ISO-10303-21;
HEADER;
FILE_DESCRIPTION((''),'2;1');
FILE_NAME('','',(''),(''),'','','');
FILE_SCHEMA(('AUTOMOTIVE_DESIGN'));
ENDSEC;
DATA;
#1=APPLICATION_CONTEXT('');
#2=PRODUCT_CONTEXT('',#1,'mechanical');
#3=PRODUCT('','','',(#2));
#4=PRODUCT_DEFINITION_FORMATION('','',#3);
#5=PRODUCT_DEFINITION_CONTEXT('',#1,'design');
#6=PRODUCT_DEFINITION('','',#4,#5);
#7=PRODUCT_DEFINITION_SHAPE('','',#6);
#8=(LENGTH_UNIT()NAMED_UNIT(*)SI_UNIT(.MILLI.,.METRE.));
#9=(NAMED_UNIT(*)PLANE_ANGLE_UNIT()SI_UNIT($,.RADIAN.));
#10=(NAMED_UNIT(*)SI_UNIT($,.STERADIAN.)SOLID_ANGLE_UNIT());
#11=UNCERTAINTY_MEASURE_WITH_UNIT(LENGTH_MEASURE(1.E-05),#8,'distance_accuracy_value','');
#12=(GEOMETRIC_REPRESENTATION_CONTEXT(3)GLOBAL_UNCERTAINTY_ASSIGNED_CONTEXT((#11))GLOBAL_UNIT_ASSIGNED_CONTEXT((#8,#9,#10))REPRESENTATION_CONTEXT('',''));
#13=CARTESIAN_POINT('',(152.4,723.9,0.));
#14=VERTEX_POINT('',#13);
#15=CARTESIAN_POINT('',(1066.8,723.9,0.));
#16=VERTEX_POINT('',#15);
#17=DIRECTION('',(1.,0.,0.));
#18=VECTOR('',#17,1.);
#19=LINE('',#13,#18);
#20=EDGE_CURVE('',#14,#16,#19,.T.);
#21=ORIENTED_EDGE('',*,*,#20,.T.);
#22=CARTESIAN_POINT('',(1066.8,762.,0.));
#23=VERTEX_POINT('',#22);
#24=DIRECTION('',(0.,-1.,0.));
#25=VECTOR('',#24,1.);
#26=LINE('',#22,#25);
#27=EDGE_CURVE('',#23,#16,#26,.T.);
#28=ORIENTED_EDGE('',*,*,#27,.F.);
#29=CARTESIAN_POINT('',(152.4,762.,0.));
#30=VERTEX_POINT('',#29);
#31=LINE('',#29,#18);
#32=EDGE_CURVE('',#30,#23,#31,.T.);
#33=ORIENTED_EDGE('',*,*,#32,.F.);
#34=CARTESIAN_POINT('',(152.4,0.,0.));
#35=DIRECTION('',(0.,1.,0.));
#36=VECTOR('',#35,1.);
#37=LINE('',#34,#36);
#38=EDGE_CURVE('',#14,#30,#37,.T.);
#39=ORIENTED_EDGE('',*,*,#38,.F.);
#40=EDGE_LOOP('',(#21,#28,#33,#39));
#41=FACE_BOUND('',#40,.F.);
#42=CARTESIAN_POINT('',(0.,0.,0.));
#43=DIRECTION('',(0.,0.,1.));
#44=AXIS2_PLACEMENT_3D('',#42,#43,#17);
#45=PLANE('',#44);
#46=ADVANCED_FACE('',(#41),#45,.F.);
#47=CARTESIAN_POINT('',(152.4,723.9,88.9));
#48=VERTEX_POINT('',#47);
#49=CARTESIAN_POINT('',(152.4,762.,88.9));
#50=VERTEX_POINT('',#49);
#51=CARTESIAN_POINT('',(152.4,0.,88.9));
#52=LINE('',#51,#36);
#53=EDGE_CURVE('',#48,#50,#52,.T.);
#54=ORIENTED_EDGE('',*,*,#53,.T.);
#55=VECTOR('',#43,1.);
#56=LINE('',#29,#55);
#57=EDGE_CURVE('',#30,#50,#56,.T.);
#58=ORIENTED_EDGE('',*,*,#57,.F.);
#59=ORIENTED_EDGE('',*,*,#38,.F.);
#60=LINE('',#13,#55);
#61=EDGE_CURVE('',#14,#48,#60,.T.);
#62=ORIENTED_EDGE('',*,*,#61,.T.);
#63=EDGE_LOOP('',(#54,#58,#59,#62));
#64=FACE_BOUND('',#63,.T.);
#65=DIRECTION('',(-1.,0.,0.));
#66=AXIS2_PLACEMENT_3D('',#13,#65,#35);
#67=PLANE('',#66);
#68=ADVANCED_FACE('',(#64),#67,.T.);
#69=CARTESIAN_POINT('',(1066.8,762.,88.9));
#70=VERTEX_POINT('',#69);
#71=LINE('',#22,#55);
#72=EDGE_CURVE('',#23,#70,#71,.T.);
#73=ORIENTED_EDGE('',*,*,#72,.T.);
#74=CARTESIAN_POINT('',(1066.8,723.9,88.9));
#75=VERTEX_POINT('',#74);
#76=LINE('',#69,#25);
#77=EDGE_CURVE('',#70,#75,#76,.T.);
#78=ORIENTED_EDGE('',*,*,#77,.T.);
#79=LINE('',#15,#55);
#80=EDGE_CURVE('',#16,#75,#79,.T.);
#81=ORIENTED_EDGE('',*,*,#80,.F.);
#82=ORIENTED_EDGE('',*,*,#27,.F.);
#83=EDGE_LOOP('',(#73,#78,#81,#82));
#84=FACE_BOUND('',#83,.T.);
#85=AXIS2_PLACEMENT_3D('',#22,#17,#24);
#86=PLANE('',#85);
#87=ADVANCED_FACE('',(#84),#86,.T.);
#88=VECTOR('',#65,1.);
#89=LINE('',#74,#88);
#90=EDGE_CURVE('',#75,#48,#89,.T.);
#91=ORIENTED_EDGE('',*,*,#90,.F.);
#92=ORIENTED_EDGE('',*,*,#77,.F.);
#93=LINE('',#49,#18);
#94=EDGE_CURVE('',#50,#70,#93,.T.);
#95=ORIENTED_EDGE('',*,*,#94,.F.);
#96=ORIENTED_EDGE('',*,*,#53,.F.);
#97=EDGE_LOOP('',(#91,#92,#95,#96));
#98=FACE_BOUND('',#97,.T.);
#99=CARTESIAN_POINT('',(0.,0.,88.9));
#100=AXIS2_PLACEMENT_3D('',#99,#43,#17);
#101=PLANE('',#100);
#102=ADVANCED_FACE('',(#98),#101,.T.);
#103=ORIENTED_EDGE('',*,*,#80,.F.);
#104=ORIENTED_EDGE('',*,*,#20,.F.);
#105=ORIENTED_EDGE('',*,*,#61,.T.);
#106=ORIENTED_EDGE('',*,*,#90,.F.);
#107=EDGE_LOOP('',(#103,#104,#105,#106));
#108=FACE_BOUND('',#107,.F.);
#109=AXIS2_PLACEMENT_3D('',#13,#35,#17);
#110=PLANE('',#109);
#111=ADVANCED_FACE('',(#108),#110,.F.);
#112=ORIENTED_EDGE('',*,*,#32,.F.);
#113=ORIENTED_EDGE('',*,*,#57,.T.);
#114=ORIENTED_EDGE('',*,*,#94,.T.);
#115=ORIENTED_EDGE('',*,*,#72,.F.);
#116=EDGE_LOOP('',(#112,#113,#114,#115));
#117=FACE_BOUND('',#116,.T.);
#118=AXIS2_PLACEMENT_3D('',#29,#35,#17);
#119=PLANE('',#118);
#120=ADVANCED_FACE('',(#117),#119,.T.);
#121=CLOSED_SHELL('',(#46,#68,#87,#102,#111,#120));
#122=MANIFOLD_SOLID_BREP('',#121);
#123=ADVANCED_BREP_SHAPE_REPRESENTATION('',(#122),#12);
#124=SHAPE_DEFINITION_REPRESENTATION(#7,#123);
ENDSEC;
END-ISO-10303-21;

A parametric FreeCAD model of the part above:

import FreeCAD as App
import Part
import Sketcher

V = App.Vector
Q = App.Units.Quantity


def add_polygon(sketch, points):
    """Adds a closed chain of lines whose ends are joined by coincident constraints."""
    first, n = sketch.GeometryCount, len(points)
    for a, b in zip(points, points[1:] + points[:1]):
        sketch.addGeometry(Part.LineSegment(App.Vector(*a, 0), App.Vector(*b, 0)), False)
    for i in range(n):
        sketch.addConstraint(Sketcher.Constraint("Coincident", first + i, 2, first + (i + 1) % n, 1))

doc = App.newDocument("Part")
body = doc.addObject("PartDesign::Body", "Body")

sketch1 = body.newObject("Sketcher::SketchObject", "Sketch")
sketch1.AttachmentSupport = (doc.getObject("XY_Plane"), [""])
sketch1.MapMode = "FlatFace"
add_polygon(sketch1, [(152, 724), (1067, 724), (1067, 762), (152, 762)])
sketch1.addConstraint([
    Sketcher.Constraint("Horizontal", 0),
    Sketcher.Constraint("Vertical", 1),
    Sketcher.Constraint("Horizontal", 2),
    Sketcher.Constraint("Vertical", 3),
    Sketcher.Constraint("DistanceX", 0, 1, 0, 2, Q("36 in")),
    Sketcher.Constraint("DistanceY", 1, 1, 1, 2, Q("1.5 in")),
    Sketcher.Constraint("DistanceY", -1, 1, 1, 2, Q("30 in")),
    Sketcher.Constraint("DistanceX", -1, 1, 2, 2, Q("6 in")),
])
pad1 = body.newObject("PartDesign::Pad", "Pad")
pad1.Profile = sketch1
pad1.Length = Q("3.5 in")

doc.recompute()
